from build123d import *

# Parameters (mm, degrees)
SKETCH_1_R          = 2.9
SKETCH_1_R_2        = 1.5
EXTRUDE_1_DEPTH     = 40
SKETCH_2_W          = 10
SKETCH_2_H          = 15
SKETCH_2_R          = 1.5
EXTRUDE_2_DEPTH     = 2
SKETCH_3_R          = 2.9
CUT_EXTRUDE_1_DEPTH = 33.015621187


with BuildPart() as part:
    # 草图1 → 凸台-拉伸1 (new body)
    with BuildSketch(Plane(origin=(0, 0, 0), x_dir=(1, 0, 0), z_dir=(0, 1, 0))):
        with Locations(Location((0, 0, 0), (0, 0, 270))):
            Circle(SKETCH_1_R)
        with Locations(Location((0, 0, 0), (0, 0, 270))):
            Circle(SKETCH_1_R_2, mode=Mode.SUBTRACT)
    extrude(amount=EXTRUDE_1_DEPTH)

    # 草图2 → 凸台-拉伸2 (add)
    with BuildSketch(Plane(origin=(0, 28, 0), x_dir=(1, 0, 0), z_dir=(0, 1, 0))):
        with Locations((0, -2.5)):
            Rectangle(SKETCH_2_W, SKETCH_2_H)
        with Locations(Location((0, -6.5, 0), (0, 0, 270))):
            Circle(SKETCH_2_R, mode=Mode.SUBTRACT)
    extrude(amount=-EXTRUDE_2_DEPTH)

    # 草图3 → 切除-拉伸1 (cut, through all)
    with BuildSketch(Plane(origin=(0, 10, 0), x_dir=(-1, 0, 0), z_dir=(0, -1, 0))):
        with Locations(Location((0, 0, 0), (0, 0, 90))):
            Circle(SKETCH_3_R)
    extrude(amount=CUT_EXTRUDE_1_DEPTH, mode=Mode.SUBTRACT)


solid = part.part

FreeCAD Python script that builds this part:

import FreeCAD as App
import Part
import Sketcher
from FreeCAD import Vector
Q = App.Units.Quantity

doc = App.newDocument("Part")
params = doc.addObject("Spreadsheet::Sheet", "Params")
for row, (alias, value) in enumerate([
    ("sketch1_diameter", "3 mm"),
    ("sketch1_diameter2", "5.8 mm"),
    ("pad1_length", "40 mm"),
    ("sketch2_diameter", "3 mm"),
    ("sketch2_width", "10 mm"),
    ("sketch2_height", "15 mm"),
    ("pad2_length", "2 mm"),
    ("sketch3_diameter", "5.8 mm"),
], start=1):
    params.set(f"A{row}", alias)
    params.set(f"B{row}", "=" + value)
    params.setAlias(f"B{row}", alias)

body = doc.addObject("PartDesign::Body", "Body")

# Sketch on XZ plane
sketch1 = doc.addObject("Sketcher::SketchObject", "Sketch")
body.addObject(sketch1)
sketch1.AttachmentSupport = (doc.XZ_Plane, [""])
sketch1.MapMode = "FlatFace"
sketch1.addGeometry(Part.Circle(Vector(0, 0, 0), Vector(0, 0, 1), 2.9), False)
sketch1.addGeometry(Part.Circle(Vector(0, 0, 0), Vector(0, 0, 1), 1.5), False)
sketch1.addConstraint(Sketcher.Constraint("Coincident", 0, 3, -1, 1))
sketch1.addConstraint(Sketcher.Constraint("Coincident", 1, 3, -1, 1))
sketch1.addConstraint(Sketcher.Constraint("Diameter", 1, Q("3 mm")))
sketch1.addConstraint(Sketcher.Constraint("Diameter", 0, Q("5.8 mm")))
sketch1.setExpression("Constraints[2]", "Params.sketch1_diameter")
sketch1.setExpression("Constraints[3]", "Params.sketch1_diameter2")
pad1 = doc.addObject("PartDesign::Pad", "Pad")
body.addObject(pad1)
pad1.Profile = sketch1
pad1.setExpression("Length", "Params.pad1_length")
pad1.Reversed = True

# Sketch on XZ plane
sketch2 = doc.addObject("Sketcher::SketchObject", "Sketch001")
body.addObject(sketch2)
sketch2.AttachmentSupport = (doc.XZ_Plane, [""])
sketch2.MapMode = "FlatFace"
sketch2.AttachmentOffset = App.Placement(Vector(0, 0, -28), App.Rotation())
sketch2.addGeometry(Part.LineSegment(Vector(-5, -5, 0), Vector(-5, 10, 0)), False)
sketch2.addGeometry(Part.LineSegment(Vector(-5, 10, 0), Vector(5, 10, 0)), False)
sketch2.addGeometry(Part.LineSegment(Vector(5, 10, 0), Vector(5, -5, 0)), False)
sketch2.addGeometry(Part.LineSegment(Vector(5, -5, 0), Vector(-5, -5, 0)), False)
sketch2.addGeometry(Part.Circle(Vector(0, 6.5, 0), Vector(0, 0, 1), 1.5), False)
sketch2.addConstraint(Sketcher.Constraint("Coincident", 0, 2, 1, 1))
sketch2.addConstraint(Sketcher.Constraint("Coincident", 1, 2, 2, 1))
sketch2.addConstraint(Sketcher.Constraint("Coincident", 2, 2, 3, 1))
sketch2.addConstraint(Sketcher.Constraint("Coincident", 3, 2, 0, 1))
sketch2.addConstraint(Sketcher.Constraint("Vertical", 0))
sketch2.addConstraint(Sketcher.Constraint("Horizontal", 1))
sketch2.addConstraint(Sketcher.Constraint("Vertical", 2))
sketch2.addConstraint(Sketcher.Constraint("Horizontal", 3))
sketch2.addConstraint(Sketcher.Constraint("PointOnObject", 4, 3, -2))
sketch2.addConstraint(Sketcher.Constraint("Diameter", 4, Q("3 mm")))
sketch2.addConstraint(Sketcher.Constraint("DistanceX", 1, 1, 1, 2, Q("10 mm")))
sketch2.addConstraint(Sketcher.Constraint("DistanceY", 0, 1, 0, 2, Q("15 mm")))
sketch2.addConstraint(Sketcher.Constraint("DistanceX", 0, 2, -1, 1, Q("5 mm")))
sketch2.addConstraint(Sketcher.Constraint("DistanceY", -1, 1, 0, 2, Q("10 mm")))
sketch2.addConstraint(Sketcher.Constraint("DistanceY", -1, 1, 4, 3, Q("6.5 mm")))
sketch2.setExpression("Constraints[9]", "Params.sketch2_diameter")
sketch2.setExpression("Constraints[10]", "Params.sketch2_width")
sketch2.setExpression("Constraints[11]", "Params.sketch2_height")
pad2 = doc.addObject("PartDesign::Pad", "Pad001")
body.addObject(pad2)
pad2.Profile = sketch2
pad2.setExpression("Length", "Params.pad2_length")

# Sketch on XZ plane
sketch3 = doc.addObject("Sketcher::SketchObject", "Sketch002")
body.addObject(sketch3)
sketch3.AttachmentSupport = (doc.XZ_Plane, [""])
sketch3.MapMode = "FlatFace"
sketch3.AttachmentOffset = App.Placement(Vector(0, 0, -10), App.Rotation())
sketch3.addGeometry(Part.Circle(Vector(0, 0, 0), Vector(0, 0, 1), 2.9), False)
sketch3.addConstraint(Sketcher.Constraint("Coincident", 0, 3, -1, 1))
sketch3.addConstraint(Sketcher.Constraint("Diameter", 0, Q("5.8 mm")))
sketch3.setExpression("Constraints[1]", "Params.sketch3_diameter")
pocket1 = doc.addObject("PartDesign::Pocket", "Pocket")
body.addObject(pocket1)
pocket1.Profile = sketch3
pocket1.Type = "ThroughAll"
pocket1.Reversed = True

doc.recompute()
